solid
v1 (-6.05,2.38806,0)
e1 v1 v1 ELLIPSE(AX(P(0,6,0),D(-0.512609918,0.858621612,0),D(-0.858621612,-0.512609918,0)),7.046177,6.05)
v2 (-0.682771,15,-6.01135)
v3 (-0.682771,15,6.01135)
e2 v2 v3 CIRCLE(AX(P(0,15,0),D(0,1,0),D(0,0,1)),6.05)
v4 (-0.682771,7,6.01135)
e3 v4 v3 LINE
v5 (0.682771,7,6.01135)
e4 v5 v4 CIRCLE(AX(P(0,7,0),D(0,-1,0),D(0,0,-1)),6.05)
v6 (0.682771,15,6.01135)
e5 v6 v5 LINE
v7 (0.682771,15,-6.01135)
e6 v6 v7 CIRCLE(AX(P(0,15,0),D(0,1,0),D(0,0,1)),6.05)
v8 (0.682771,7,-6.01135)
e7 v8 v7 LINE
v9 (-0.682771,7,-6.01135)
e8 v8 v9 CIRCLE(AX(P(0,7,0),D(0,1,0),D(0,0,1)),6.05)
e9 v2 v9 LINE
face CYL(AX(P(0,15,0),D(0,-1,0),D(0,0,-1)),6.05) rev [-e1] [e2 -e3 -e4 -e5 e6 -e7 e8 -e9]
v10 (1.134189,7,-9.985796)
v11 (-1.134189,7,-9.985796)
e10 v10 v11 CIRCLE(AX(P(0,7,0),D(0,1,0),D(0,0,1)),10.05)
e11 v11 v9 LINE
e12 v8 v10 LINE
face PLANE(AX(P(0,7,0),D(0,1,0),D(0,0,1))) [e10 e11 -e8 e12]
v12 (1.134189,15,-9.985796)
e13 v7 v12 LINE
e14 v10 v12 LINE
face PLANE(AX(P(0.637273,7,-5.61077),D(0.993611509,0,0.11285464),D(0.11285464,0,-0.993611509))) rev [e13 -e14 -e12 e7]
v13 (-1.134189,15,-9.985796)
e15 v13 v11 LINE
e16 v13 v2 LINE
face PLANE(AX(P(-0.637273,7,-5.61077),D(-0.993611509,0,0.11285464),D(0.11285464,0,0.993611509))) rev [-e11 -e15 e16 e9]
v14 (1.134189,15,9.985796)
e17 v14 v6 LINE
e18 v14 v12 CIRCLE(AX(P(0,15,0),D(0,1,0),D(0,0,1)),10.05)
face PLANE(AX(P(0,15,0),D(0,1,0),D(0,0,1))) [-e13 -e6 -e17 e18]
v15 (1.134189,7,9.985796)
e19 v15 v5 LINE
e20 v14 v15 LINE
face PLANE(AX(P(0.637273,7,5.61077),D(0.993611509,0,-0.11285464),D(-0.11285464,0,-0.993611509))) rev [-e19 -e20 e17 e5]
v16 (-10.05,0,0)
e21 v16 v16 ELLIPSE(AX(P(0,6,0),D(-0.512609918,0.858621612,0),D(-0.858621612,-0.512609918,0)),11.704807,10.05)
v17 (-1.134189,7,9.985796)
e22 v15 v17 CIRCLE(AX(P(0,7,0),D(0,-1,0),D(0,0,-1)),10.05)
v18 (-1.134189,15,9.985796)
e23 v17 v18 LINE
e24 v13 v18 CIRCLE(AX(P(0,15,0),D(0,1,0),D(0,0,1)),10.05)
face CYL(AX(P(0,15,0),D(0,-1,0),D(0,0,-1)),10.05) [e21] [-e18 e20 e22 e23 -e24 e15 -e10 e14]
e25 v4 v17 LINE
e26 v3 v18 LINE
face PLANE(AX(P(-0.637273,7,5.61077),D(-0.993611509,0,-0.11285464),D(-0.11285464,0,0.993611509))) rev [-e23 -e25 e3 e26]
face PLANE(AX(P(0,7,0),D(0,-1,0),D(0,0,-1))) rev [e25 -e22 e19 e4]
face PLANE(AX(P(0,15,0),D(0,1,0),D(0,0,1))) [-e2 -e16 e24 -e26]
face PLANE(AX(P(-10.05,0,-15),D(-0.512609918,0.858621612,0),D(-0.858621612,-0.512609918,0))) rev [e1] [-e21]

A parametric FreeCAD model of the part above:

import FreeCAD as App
import Part
import Sketcher
from FreeCAD import Vector

doc = App.newDocument("Part")
body = doc.addObject("PartDesign::Body", "Body")

sketch1 = doc.addObject("Sketcher::SketchObject", "Sketch")
body.addObject(sketch1)
sketch1.AttachmentSupport = (doc.XZ_Plane, [""])
sketch1.MapMode = "FlatFace"
sketch1.addGeometry([
    Part.Circle(Vector(0, 0, 0), Vector(0, 0, 1), 10.05),
    Part.Circle(Vector(0, 0, 0), Vector(0, 0, 1), 6.05),
], False)
sketch1.addConstraint([
    Sketcher.Constraint("Coincident", 0, 3, -1, 1),
    Sketcher.Constraint("Coincident", 1, 3, -1, 1),
    Sketcher.Constraint("Diameter", 0, 20.1),
    Sketcher.Constraint("Diameter", 1, 12.1),
])
pad1 = doc.addObject("PartDesign::Pad", "Pad")
body.addObject(pad1)
pad1.Profile = sketch1
pad1.Length = 15
pad1.Reversed = True

sketch2 = doc.addObject("Sketcher::SketchObject", "Sketch001")
body.addObject(sketch2)
sketch2.AttachmentSupport = (doc.XZ_Plane, [""])
sketch2.MapMode = "FlatFace"
sketch2.AttachmentOffset = App.Placement(Vector(0, 0, -15), App.Rotation())
sketch2.addGeometry([
    Part.LineSegment(Vector(-0.637273, -5.61077, 0), Vector(0.637273, -5.61077, 0)),
    Part.LineSegment(Vector(0.637273, -5.61077, 0), Vector(1.215709, -10.703521, 0)),
    Part.LineSegment(Vector(1.215709, -10.703521, 0), Vector(-1.215709, -10.703521, 0)),
    Part.LineSegment(Vector(-1.215709, -10.703521, 0), Vector(-0.637273, -5.61077, 0)),
    Part.LineSegment(Vector(-0.637273, 5.61077, 0), Vector(-1.215709, 10.703521, 0)),
    Part.LineSegment(Vector(-1.215709, 10.703521, 0), Vector(1.215709, 10.703521, 0)),
    Part.LineSegment(Vector(1.215709, 10.703521, 0), Vector(0.637273, 5.61077, 0)),
    Part.LineSegment(Vector(0.637273, 5.61077, 0), Vector(-0.637273, 5.61077, 0)),
], False)
sketch2.addConstraint([
    Sketcher.Constraint("Coincident", 0, 2, 1, 1),
    Sketcher.Constraint("Coincident", 1, 2, 2, 1),
    Sketcher.Constraint("Coincident", 2, 2, 3, 1),
    Sketcher.Constraint("Coincident", 3, 2, 0, 1),
    Sketcher.Constraint("Coincident", 4, 2, 5, 1),
    Sketcher.Constraint("Coincident", 5, 2, 6, 1),
    Sketcher.Constraint("Coincident", 6, 2, 7, 1),
    Sketcher.Constraint("Coincident", 7, 2, 4, 1),
    Sketcher.Constraint("Horizontal", 0),
    Sketcher.Constraint("Horizontal", 2),
    Sketcher.Constraint("Horizontal", 5),
    Sketcher.Constraint("Horizontal", 7),
    Sketcher.Constraint("Symmetric", 1, 2, 4, 2, -1, 1),
    Sketcher.Constraint("Symmetric", 3, 2, 6, 2, -1, 1),
    Sketcher.Constraint("Parallel", 1, 4),
    Sketcher.Constraint("Parallel", 3, 6),
    Sketcher.Constraint("Vertical", 2, 2, 4, 2),
    Sketcher.Constraint("Vertical", 0, 2, 6, 2),
    Sketcher.Constraint("DistanceX", 0, 1, 0, 2, 1.274545),
    Sketcher.Constraint("DistanceX", 2, 2, 2, 1, 2.431417),
    Sketcher.Constraint("DistanceY", 0, 2, -1, 1, 5.61077),
    Sketcher.Constraint("DistanceY", 1, 2, -1, 1, 10.703521),
])
pocket1 = doc.addObject("PartDesign::Pocket", "Pocket")
body.addObject(pocket1)
pocket1.Profile = sketch2
pocket1.Length = 8
pocket1.Reversed = True

sketch3 = doc.addObject("Sketcher::SketchObject", "Sketch002")
body.addObject(sketch3)
sketch3.AttachmentSupport = (doc.XY_Plane, [""])
sketch3.MapMode = "FlatFace"
sketch3.addGeometry([
    Part.LineSegment(Vector(10.05, 12, 0), Vector(-10.05, 0, 0)),
    Part.LineSegment(Vector(-10.05, 0, 0), Vector(10.05, 0, 0)),
    Part.LineSegment(Vector(10.05, 0, 0), Vector(10.05, 12, 0)),
], False)
sketch3.addConstraint([
    Sketcher.Constraint("Coincident", 0, 2, 1, 1),
    Sketcher.Constraint("Coincident", 1, 2, 2, 1),
    Sketcher.Constraint("Coincident", 2, 2, 0, 1),
    Sketcher.Constraint("Horizontal", 1),
    Sketcher.Constraint("Vertical", 2),
    Sketcher.Constraint("Symmetric", 0, 2, 1, 2, -1, 1),
    Sketcher.Constraint("DistanceY", 2, 1, 2, 2, 12.0),
    Sketcher.Constraint("DistanceX", 1, 1, 1, 2, 20.1),
])
pocket2 = doc.addObject("PartDesign::Pocket", "Pocket001")
body.addObject(pocket2)
pocket2.Profile = sketch3
pocket2.Length = 30
pocket2.Midplane = True

doc.recompute()
